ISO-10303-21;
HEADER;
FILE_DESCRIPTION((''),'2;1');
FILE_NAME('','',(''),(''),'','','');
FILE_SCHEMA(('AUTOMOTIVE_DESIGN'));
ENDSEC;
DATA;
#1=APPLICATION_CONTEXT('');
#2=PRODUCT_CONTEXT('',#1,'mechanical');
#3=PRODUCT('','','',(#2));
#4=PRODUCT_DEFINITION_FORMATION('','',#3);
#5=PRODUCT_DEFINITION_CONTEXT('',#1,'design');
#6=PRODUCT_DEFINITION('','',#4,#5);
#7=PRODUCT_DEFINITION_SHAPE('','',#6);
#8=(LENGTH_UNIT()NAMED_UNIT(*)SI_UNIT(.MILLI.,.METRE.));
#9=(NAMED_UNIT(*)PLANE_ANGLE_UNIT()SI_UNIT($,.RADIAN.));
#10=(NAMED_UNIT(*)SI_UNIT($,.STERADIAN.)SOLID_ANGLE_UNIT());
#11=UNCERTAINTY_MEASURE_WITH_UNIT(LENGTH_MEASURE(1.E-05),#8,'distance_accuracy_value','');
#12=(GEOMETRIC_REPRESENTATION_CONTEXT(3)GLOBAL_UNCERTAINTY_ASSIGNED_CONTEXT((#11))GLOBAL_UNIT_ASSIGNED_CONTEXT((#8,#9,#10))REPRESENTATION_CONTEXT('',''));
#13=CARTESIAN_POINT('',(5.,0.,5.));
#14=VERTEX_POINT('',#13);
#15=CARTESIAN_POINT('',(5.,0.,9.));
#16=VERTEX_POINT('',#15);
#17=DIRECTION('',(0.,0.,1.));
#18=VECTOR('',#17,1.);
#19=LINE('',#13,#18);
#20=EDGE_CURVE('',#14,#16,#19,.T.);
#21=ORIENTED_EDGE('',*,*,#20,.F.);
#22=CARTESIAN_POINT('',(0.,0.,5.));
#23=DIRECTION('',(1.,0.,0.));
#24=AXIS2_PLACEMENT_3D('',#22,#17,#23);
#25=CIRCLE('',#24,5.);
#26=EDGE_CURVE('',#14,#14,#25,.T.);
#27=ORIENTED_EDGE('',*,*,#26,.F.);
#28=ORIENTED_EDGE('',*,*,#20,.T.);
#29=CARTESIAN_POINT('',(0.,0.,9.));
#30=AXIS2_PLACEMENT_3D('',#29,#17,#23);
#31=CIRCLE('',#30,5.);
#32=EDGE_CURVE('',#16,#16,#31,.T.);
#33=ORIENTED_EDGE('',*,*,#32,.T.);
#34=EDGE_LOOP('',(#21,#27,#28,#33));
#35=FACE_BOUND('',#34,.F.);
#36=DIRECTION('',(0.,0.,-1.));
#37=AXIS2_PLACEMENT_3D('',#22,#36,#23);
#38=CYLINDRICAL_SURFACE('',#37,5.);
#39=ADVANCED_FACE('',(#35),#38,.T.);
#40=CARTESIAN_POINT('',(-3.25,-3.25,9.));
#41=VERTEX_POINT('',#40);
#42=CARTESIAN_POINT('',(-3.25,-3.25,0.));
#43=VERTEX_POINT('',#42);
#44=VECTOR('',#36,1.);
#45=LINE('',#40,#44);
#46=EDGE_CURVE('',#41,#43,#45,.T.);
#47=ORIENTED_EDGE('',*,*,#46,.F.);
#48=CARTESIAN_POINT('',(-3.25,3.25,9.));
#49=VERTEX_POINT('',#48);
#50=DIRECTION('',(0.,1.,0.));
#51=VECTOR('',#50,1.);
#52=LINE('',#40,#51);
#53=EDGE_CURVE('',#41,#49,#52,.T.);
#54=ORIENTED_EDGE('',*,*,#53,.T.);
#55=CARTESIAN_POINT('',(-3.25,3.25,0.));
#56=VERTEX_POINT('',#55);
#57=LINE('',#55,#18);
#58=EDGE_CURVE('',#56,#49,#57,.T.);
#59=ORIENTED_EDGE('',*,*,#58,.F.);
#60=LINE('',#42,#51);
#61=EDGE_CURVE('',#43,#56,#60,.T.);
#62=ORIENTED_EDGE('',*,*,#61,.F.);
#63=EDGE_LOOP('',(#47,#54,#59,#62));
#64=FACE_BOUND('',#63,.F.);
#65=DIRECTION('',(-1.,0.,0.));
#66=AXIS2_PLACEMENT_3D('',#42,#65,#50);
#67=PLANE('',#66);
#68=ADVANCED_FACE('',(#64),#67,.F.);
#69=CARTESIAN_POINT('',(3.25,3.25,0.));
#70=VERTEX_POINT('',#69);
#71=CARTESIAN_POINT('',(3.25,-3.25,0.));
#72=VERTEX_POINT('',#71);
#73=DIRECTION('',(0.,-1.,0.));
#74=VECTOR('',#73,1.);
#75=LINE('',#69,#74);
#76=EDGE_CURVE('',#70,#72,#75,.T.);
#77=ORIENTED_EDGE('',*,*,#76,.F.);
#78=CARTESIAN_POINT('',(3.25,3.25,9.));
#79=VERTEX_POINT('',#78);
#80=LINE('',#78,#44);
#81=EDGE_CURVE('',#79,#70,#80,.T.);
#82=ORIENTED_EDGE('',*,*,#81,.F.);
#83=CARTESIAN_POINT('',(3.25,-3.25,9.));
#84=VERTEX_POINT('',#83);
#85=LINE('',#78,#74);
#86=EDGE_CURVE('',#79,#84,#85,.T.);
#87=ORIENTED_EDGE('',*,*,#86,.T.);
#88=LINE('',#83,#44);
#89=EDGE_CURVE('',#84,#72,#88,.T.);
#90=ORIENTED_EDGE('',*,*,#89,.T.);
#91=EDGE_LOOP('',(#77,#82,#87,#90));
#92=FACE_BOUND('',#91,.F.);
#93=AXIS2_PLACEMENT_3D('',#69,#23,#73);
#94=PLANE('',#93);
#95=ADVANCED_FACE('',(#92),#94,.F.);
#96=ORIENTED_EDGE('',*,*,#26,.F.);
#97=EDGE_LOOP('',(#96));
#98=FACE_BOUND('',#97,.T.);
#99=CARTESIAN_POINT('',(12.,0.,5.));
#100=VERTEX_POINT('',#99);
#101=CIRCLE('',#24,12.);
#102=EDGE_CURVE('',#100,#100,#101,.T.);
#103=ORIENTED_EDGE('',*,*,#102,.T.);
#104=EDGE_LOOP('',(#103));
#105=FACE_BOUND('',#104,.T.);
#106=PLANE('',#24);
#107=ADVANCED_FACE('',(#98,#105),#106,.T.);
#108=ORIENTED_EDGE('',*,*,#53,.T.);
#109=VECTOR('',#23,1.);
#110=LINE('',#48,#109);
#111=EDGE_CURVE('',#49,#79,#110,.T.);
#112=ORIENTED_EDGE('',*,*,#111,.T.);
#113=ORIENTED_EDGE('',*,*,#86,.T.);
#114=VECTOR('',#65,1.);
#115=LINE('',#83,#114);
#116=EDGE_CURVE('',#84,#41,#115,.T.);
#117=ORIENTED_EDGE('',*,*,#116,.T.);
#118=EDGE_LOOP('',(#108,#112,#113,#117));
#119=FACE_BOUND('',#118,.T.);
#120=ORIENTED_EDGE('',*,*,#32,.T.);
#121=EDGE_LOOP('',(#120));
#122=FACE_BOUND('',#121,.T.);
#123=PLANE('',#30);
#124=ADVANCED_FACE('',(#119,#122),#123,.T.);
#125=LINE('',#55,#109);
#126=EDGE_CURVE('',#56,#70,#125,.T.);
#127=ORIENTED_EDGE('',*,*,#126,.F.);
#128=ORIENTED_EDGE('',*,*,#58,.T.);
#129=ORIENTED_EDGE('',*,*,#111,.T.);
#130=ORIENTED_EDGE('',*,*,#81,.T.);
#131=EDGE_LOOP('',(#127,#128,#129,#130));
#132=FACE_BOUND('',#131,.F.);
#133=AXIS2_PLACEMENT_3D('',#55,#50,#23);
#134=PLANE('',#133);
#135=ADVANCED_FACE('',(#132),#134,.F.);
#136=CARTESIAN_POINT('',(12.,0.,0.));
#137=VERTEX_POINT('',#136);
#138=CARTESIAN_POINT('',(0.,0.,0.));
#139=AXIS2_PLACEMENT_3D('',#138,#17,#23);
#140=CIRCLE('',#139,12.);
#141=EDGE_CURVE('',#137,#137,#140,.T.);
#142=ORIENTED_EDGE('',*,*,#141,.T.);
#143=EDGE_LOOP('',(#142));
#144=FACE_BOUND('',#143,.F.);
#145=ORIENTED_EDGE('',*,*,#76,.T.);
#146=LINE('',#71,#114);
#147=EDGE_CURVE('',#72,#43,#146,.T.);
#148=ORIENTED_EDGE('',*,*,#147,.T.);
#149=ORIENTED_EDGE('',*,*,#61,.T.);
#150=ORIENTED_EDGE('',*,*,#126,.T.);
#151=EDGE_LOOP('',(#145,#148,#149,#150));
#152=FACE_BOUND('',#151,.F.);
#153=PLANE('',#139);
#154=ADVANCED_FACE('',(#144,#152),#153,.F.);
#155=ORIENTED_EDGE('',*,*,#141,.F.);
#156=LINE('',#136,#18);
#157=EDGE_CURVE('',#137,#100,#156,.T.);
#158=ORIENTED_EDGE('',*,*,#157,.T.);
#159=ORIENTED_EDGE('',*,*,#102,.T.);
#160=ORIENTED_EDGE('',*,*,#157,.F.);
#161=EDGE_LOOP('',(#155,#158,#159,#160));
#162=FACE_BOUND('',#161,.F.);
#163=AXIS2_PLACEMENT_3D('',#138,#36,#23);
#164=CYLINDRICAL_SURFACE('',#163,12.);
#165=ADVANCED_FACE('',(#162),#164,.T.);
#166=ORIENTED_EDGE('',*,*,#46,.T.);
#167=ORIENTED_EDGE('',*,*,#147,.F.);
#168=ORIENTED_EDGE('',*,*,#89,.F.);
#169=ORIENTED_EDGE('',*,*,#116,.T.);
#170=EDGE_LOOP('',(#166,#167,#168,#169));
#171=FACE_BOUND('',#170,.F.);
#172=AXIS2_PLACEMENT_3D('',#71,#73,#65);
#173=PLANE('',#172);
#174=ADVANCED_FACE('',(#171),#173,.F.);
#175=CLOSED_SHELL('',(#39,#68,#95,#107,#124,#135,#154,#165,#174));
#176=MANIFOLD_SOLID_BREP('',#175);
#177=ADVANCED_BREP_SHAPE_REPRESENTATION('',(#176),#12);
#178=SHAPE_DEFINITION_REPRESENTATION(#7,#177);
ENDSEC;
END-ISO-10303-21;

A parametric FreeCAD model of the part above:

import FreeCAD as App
import Part
import Sketcher

doc = App.newDocument("Part")
body = doc.addObject("PartDesign::Body", "Body")

# Sketch on XY plane
sketch1 = body.newObject("Sketcher::SketchObject", "Sketch")
sketch1.AttachmentSupport = (doc.getObject("XY_Plane"), [""])
sketch1.MapMode = "FlatFace"
sketch1.addGeometry(Part.Circle(App.Vector(0, 0, 0), App.Vector(0, 0, 1), 12), False)
sketch1.addGeometry(Part.LineSegment(App.Vector(-3, -3, 0), App.Vector(-3, 3, 0)), False)
sketch1.addGeometry(Part.LineSegment(App.Vector(-3, 3, 0), App.Vector(3, 3, 0)), False)
sketch1.addGeometry(Part.LineSegment(App.Vector(3, 3, 0), App.Vector(3, -3, 0)), False)
sketch1.addGeometry(Part.LineSegment(App.Vector(3, -3, 0), App.Vector(-3, -3, 0)), False)
sketch1.addConstraint(Sketcher.Constraint("Coincident", 1, 2, 2, 1))
sketch1.addConstraint(Sketcher.Constraint("Coincident", 2, 2, 3, 1))
sketch1.addConstraint(Sketcher.Constraint("Coincident", 3, 2, 4, 1))
sketch1.addConstraint(Sketcher.Constraint("Coincident", 4, 2, 1, 1))
sketch1.addConstraint(Sketcher.Constraint("Vertical", 1))
sketch1.addConstraint(Sketcher.Constraint("Horizontal", 2))
sketch1.addConstraint(Sketcher.Constraint("Vertical", 3))
sketch1.addConstraint(Sketcher.Constraint("Horizontal", 4))
sketch1.addConstraint(Sketcher.Constraint("Coincident", 0, 3, -1, 1))
sketch1.addConstraint(Sketcher.Constraint("Symmetric", 1, 2, 3, 2, -1, 1))
sketch1.addConstraint(Sketcher.Constraint("Equal", 4, 1))
sketch1.addConstraint(Sketcher.Constraint("Diameter", 0, 24.0))
sketch1.addConstraint(Sketcher.Constraint("DistanceX", 2, 1, 2, 2, 6.5))
pad1 = body.newObject("PartDesign::Pad", "Pad")
pad1.Profile = sketch1
pad1.Length = 5

# Sketch on XY plane
sketch2 = body.newObject("Sketcher::SketchObject", "Sketch001")
sketch2.AttachmentSupport = (doc.getObject("XY_Plane"), [""])
sketch2.MapMode = "FlatFace"
sketch2.AttachmentOffset = App.Placement(App.Vector(0, 0, 5), App.Rotation())
sketch2.addGeometry(Part.Circle(App.Vector(0, 0, 0), App.Vector(0, 0, 1), 5), False)
sketch2.addGeometry(Part.LineSegment(App.Vector(-3, -3, 0), App.Vector(-3, 3, 0)), False)
sketch2.addGeometry(Part.LineSegment(App.Vector(-3, 3, 0), App.Vector(3, 3, 0)), False)
sketch2.addGeometry(Part.LineSegment(App.Vector(3, 3, 0), App.Vector(3, -3, 0)), False)
sketch2.addGeometry(Part.LineSegment(App.Vector(3, -3, 0), App.Vector(-3, -3, 0)), False)
sketch2.addConstraint(Sketcher.Constraint("Coincident", 1, 2, 2, 1))
sketch2.addConstraint(Sketcher.Constraint("Coincident", 2, 2, 3, 1))
sketch2.addConstraint(Sketcher.Constraint("Coincident", 3, 2, 4, 1))
sketch2.addConstraint(Sketcher.Constraint("Coincident", 4, 2, 1, 1))
sketch2.addConstraint(Sketcher.Constraint("Vertical", 1))
sketch2.addConstraint(Sketcher.Constraint("Horizontal", 2))
sketch2.addConstraint(Sketcher.Constraint("Vertical", 3))
sketch2.addConstraint(Sketcher.Constraint("Horizontal", 4))
sketch2.addConstraint(Sketcher.Constraint("Coincident", 0, 3, -1, 1))
sketch2.addConstraint(Sketcher.Constraint("Symmetric", 1, 2, 3, 2, -1, 1))
sketch2.addConstraint(Sketcher.Constraint("Equal", 4, 1))
sketch2.addConstraint(Sketcher.Constraint("Diameter", 0, 10.0))
sketch2.addConstraint(Sketcher.Constraint("DistanceX", 2, 1, 2, 2, 6.5))
pad2 = body.newObject("PartDesign::Pad", "Pad001")
pad2.Profile = sketch2
pad2.Length = 4

doc.recompute()
